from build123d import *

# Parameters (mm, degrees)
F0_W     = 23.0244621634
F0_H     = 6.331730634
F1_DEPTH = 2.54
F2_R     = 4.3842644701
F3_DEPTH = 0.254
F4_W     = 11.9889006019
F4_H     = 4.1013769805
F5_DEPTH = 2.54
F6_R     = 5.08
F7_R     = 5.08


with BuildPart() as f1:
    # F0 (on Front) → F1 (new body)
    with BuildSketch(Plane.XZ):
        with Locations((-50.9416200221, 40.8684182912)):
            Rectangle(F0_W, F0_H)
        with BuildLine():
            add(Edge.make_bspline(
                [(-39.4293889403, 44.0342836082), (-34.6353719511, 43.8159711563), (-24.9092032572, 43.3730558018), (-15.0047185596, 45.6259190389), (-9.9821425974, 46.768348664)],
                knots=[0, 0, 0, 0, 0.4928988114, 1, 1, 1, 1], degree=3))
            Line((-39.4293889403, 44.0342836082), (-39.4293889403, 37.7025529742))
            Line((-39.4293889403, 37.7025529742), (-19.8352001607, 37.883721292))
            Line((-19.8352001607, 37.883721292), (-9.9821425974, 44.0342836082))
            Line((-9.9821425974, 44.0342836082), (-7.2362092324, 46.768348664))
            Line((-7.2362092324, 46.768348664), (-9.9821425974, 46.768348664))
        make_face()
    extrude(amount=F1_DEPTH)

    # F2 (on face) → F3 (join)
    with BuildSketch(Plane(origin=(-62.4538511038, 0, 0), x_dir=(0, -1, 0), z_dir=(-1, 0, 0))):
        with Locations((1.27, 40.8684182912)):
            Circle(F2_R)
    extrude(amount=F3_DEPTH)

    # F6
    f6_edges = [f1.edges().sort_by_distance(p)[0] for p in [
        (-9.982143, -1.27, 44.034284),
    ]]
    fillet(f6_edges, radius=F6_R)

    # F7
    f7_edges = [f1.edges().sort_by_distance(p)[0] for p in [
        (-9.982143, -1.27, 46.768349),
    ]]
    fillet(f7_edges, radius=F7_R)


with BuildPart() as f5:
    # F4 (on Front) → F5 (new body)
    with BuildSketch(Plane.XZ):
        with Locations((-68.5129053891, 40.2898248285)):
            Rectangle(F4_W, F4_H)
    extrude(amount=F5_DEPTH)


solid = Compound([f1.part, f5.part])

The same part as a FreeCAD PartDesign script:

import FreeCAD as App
import Part
import Sketcher
Q = App.Units.Quantity


def edges_at(feature, points):
    """Names of the edges that pass closest to the given points."""
    edges = feature.Shape.Edges
    near = lambda p: min(range(len(edges)), key=lambda i: edges[i].distToShape(Part.Vertex(*p))[0])
    return sorted({f"Edge{near(p) + 1}" for p in points})


def add_polygon(sketch, points):
    """Adds a closed chain of lines whose ends are joined by coincident constraints."""
    first, n = sketch.GeometryCount, len(points)
    for a, b in zip(points, points[1:] + points[:1]):
        sketch.addGeometry(Part.LineSegment(App.Vector(*a, 0), App.Vector(*b, 0)), False)
    for i in range(n):
        sketch.addConstraint(Sketcher.Constraint("Coincident", first + i, 2, first + (i + 1) % n, 1))

doc = App.newDocument("Part")
body = doc.addObject("PartDesign::Body", "Body")

# Sketch on XZ plane
sketch1 = body.newObject("Sketcher::SketchObject", "Sketch")
sketch1.AttachmentSupport = (doc.getObject("XZ_Plane"), [""])
sketch1.MapMode = "FlatFace"
sketch1.addGeometry([
    Part.LineSegment(App.Vector(-62.453851, 44.034284, 0), App.Vector(-62.453851, 37.702553, 0)),  # 0
    Part.LineSegment(App.Vector(-62.453851, 37.702553, 0), App.Vector(-39.429389, 37.702553, 0)),  # 1
    Part.LineSegment(App.Vector(-39.429389, 37.702553, 0), App.Vector(-19.8352, 37.883721, 0)),  # 2
    Part.LineSegment(App.Vector(-19.8352, 37.883721, 0), App.Vector(-9.982143, 44.034284, 0)),  # 3
    Part.LineSegment(App.Vector(-9.982143, 44.034284, 0), App.Vector(-7.236209, 46.768349, 0)),  # 4
    Part.LineSegment(App.Vector(-7.236209, 46.768349, 0), App.Vector(-9.982143, 46.768349, 0)),  # 5
    Part.BSplineCurve([App.Vector(-39.429389, 44.034284, 0), App.Vector(-34.635372, 43.815971, 0), App.Vector(-24.909203, 43.373056, 0), App.Vector(-15.004719, 45.625919, 0), App.Vector(-9.982143, 46.768349, 0)], [4, 1, 4], [0, 0.492898811, 1], False, 3, [1, 1, 1, 1, 1], False),  # 6
    Part.LineSegment(App.Vector(-39.429389, 44.034284, 0), App.Vector(-62.453851, 44.034284, 0)),  # 7
], False)
sketch1.addConstraint([
    Sketcher.Constraint("Block", 6),
    Sketcher.Constraint("Coincident", 0, 2, 1, 1),
    Sketcher.Constraint("Coincident", 1, 2, 2, 1),
    Sketcher.Constraint("Coincident", 2, 2, 3, 1),
    Sketcher.Constraint("Coincident", 3, 2, 4, 1),
    Sketcher.Constraint("Coincident", 4, 2, 5, 1),
    Sketcher.Constraint("Coincident", 5, 2, 6, 2),
    Sketcher.Constraint("Coincident", 6, 1, 7, 1),
    Sketcher.Constraint("Coincident", 7, 2, 0, 1),
    Sketcher.Constraint("Vertical", 0),
    Sketcher.Constraint("Horizontal", 1),
    Sketcher.Constraint("Horizontal", 5),
    Sketcher.Constraint("Horizontal", 7),
    Sketcher.Constraint("DistanceY", 0, 2, 0, 1, Q("6.331731 mm")),
    Sketcher.Constraint("DistanceX", 2, 2, -1, 1, Q("19.8352 mm")),
    Sketcher.Constraint("Distance", 3, Q("11.615169 mm")),
    Sketcher.Constraint("DistanceX", 1, 1, 1, 2, Q("23.024462 mm")),
    Sketcher.Constraint("DistanceX", 5, 2, 5, 1, Q("2.745933 mm")),
    Sketcher.Constraint("DistanceX", 7, 2, 7, 1, Q("23.024462 mm")),
    Sketcher.Constraint("DistanceY", -1, 1, 2, 2, Q("37.883721 mm")),
    Sketcher.Constraint("DistanceY", 1, 2, 3, 2, Q("6.331731 mm")),
])
pad1 = body.newObject("PartDesign::Pad", "Pad")
pad1.Profile = sketch1
pad1.Length = Q("0.1 in")

# Sketch on YZ plane
sketch2 = body.newObject("Sketcher::SketchObject", "Sketch001")
sketch2.AttachmentSupport = (doc.getObject("YZ_Plane"), [""])
sketch2.MapMode = "FlatFace"
sketch2.AttachmentOffset = App.Placement(App.Vector(0, 0, -62.453851), App.Rotation())
sketch2.addGeometry(Part.Circle(App.Vector(-1.27, 40.868418, 0), App.Vector(0, 0, 1), 4.384264), False)
sketch2.addConstraint([
    Sketcher.Constraint("DistanceX", 0, 3, -1, 1, Q("0.05 in")),
    Sketcher.Constraint("Diameter", 0, Q("8.768529 mm")),
    Sketcher.Constraint("DistanceY", -1, 1, 0, 3, Q("40.868418 mm")),
])
pad2 = body.newObject("PartDesign::Pad", "Pad001")
pad2.Profile = sketch2
pad2.Length = Q("0.01 in")
pad2.Reversed = True
doc.recompute()

fillet = body.newObject("PartDesign::Fillet", "Fillet")
fillet.Base = (pad2, edges_at(pad2, [(-9.982, -1.27, 44.034)]))
fillet.Radius = Q("0.2 in")
doc.recompute()

fillet2 = body.newObject("PartDesign::Fillet", "Fillet001")
fillet2.Base = (fillet, edges_at(fillet, [(-9.982, -1.27, 46.768)]))
fillet2.Radius = Q("0.2 in")
body2 = doc.addObject("PartDesign::Body", "Body001")

# Sketch on XZ plane
sketch3 = body2.newObject("Sketcher::SketchObject", "Sketch002")
sketch3.AttachmentSupport = (doc.getObject("XZ_Plane001"), [""])
sketch3.MapMode = "FlatFace"
add_polygon(sketch3, [(-74.507356, 42.340513), (-74.507356, 38.239136), (-62.518455, 38.239136), (-62.518455, 42.340513)])  # lines 0-3
sketch3.addConstraint([
    Sketcher.Constraint("Vertical", 0),
    Sketcher.Constraint("Horizontal", 1),
    Sketcher.Constraint("Vertical", 2),
    Sketcher.Constraint("Horizontal", 3),
    Sketcher.Constraint("DistanceX", 1, 1, 1, 2, Q("11.988901 mm")),
    Sketcher.Constraint("DistanceY", 0, 2, 0, 1, Q("4.101377 mm")),
    Sketcher.Constraint("DistanceX", 0, 2, -1, 1, Q("74.507356 mm")),
    Sketcher.Constraint("DistanceY", -1, 1, 0, 2, Q("38.239136 mm")),
])
pad3 = body2.newObject("PartDesign::Pad", "Pad002")
pad3.Profile = sketch3
pad3.Length = Q("0.1 in")

doc.recompute()
